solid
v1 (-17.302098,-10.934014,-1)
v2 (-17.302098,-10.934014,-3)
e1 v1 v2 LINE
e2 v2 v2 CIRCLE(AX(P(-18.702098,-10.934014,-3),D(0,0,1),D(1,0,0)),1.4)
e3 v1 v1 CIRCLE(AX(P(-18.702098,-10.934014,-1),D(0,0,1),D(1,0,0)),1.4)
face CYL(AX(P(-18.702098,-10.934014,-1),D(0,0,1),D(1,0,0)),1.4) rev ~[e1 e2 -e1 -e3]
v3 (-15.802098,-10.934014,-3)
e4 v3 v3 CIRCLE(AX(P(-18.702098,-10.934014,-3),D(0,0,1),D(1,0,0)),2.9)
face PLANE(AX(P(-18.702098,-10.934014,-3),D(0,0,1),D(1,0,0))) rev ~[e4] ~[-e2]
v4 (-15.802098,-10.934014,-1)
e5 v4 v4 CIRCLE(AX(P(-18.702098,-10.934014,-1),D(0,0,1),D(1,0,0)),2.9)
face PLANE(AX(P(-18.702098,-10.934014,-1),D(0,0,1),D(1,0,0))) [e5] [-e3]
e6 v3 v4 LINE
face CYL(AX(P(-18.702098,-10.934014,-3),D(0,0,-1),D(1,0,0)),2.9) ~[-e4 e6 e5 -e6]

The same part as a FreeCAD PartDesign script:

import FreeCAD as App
import Part
import Sketcher
Q = App.Units.Quantity

doc = App.newDocument("Part")
body = doc.addObject("PartDesign::Body", "Body")

# Sketch on XY plane
sketch1 = body.newObject("Sketcher::SketchObject", "Sketch")
sketch1.AttachmentSupport = (doc.getObject("XY_Plane"), [""])
sketch1.MapMode = "FlatFace"
sketch1.AttachmentOffset = App.Placement(App.Vector(0, 0, -1), App.Rotation())
sketch1.addGeometry(Part.Circle(App.Vector(-18.7, -10.9, 0), App.Vector(0, 0, 1), 1.4), False)
sketch1.addConstraint(Sketcher.Constraint("Diameter", 0, Q("2.8 mm")))
sketch1.addConstraint(Sketcher.Constraint("DistanceX", 0, 3, -1, 1, Q("18.702098 mm")))
sketch1.addConstraint(Sketcher.Constraint("DistanceY", 0, 3, -1, 1, Q("10.934014 mm")))
pad1 = body.newObject("PartDesign::Pad", "Pad")
pad1.Profile = sketch1
pad1.Length = 2
pad1.Reversed = True
body2 = doc.addObject("PartDesign::Body", "Body001")

# Sketch on XY plane
sketch2 = body2.newObject("Sketcher::SketchObject", "Sketch001")
sketch2.AttachmentSupport = (doc.getObject("XY_Plane001"), [""])
sketch2.MapMode = "FlatFace"
sketch2.AttachmentOffset = App.Placement(App.Vector(0, 0, -3), App.Rotation())
sketch2.addGeometry(Part.Circle(App.Vector(-18.7, -10.9, 0), App.Vector(0, 0, 1), 2.9), False)
sketch2.addConstraint(Sketcher.Constraint("Diameter", 0, Q("5.8 mm")))
sketch2.addConstraint(Sketcher.Constraint("DistanceX", 0, 3, -1, 1, Q("18.702098 mm")))
sketch2.addConstraint(Sketcher.Constraint("DistanceY", 0, 3, -1, 1, Q("10.934014 mm")))
pad2 = body2.newObject("PartDesign::Pad", "Pad001")
pad2.Profile = sketch2
pad2.Length = 2
doc.recompute()

boolean = body2.newObject("PartDesign::Boolean", "Boolean")
boolean.Type = "Cut"
boolean.addObjects([body])

doc.recompute()
